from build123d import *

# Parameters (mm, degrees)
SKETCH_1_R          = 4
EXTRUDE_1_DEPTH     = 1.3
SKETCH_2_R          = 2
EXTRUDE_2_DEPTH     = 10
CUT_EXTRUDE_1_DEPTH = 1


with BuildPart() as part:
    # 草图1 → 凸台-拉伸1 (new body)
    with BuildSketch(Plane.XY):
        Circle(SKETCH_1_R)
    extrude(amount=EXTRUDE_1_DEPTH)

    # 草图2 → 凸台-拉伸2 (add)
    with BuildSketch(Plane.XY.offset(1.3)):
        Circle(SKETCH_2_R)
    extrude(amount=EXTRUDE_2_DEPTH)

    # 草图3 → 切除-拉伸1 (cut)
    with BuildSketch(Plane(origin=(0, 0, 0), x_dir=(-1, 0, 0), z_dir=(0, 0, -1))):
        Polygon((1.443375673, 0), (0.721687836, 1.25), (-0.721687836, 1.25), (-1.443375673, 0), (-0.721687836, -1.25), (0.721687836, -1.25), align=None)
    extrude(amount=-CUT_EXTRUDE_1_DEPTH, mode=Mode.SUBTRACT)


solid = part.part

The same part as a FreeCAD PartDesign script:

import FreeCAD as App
import Part
import Sketcher

V = App.Vector
Q = App.Units.Quantity


def add_polygon(sketch, points):
    """Adds a closed chain of lines whose ends are joined by coincident constraints."""
    first, n = sketch.GeometryCount, len(points)
    for a, b in zip(points, points[1:] + points[:1]):
        sketch.addGeometry(Part.LineSegment(App.Vector(*a, 0), App.Vector(*b, 0)), False)
    for i in range(n):
        sketch.addConstraint(Sketcher.Constraint("Coincident", first + i, 2, first + (i + 1) % n, 1))

doc = App.newDocument("Part")
body = doc.addObject("PartDesign::Body", "Body")

# Sketch on XY plane
sketch1 = body.newObject("Sketcher::SketchObject", "Sketch")
sketch1.AttachmentSupport = (doc.getObject("XY_Plane"), [""])
sketch1.MapMode = "FlatFace"
sketch1.addGeometry(Part.Circle(V(0, 0, 0), V(0, 0, 1), 4), False)
sketch1.addConstraint(Sketcher.Constraint("Coincident", 0, 3, -1, 1))
sketch1.addConstraint(Sketcher.Constraint("Diameter", 0, Q("8 mm")))
pad1 = body.newObject("PartDesign::Pad", "Pad")
pad1.Profile = sketch1
pad1.Length = 1.3

# Sketch on XY plane
sketch2 = body.newObject("Sketcher::SketchObject", "Sketch001")
sketch2.AttachmentSupport = (doc.getObject("XY_Plane"), [""])
sketch2.MapMode = "FlatFace"
sketch2.AttachmentOffset = App.Placement(V(0, 0, 1.3), App.Rotation())
sketch2.addGeometry(Part.Circle(V(0, 0, 0), V(0, 0, 1), 2), False)
sketch2.addConstraint(Sketcher.Constraint("Coincident", 0, 3, -1, 1))
sketch2.addConstraint(Sketcher.Constraint("Diameter", 0, Q("4 mm")))
pad2 = body.newObject("PartDesign::Pad", "Pad001")
pad2.Profile = sketch2
pad2.Length = 10

# Sketch on XY plane
sketch3 = body.newObject("Sketcher::SketchObject", "Sketch002")
sketch3.AttachmentSupport = (doc.getObject("XY_Plane"), [""])
sketch3.MapMode = "FlatFace"
add_polygon(sketch3, [(-1.4, 0), (-0.7, 1.2), (0.7, 1.2), (1.4, 0), (0.7, -1.2), (-0.7, -1.2)])  # lines 0-5
sketch3.addConstraint(Sketcher.Constraint("Horizontal", 1))
sketch3.addConstraint(Sketcher.Constraint("Horizontal", 4))
sketch3.addConstraint(Sketcher.Constraint("Symmetric", 0, 2, 3, 2, -1, 1))
sketch3.addConstraint(Sketcher.Constraint("Symmetric", 2, 2, 5, 2, -1, 1))
sketch3.addConstraint(Sketcher.Constraint("PointOnObject", 2, 2, -1))
sketch3.addConstraint(Sketcher.Constraint("Parallel", 2, 5))
sketch3.addConstraint(Sketcher.Constraint("Vertical", 1, 2, 3, 2))
sketch3.addConstraint(Sketcher.Constraint("Angle", 0, Q("60 deg")))
sketch3.addConstraint(Sketcher.Constraint("DistanceY", 3, 2, 1, 2, Q("2.5 mm")))
sketch3.addConstraint(Sketcher.Constraint("DistanceX", 1, 1, 1, 2, Q("1.443376 mm")))
pocket1 = body.newObject("PartDesign::Pocket", "Pocket")
pocket1.Profile = sketch3
pocket1.Length = 1
pocket1.Reversed = True

doc.recompute()
